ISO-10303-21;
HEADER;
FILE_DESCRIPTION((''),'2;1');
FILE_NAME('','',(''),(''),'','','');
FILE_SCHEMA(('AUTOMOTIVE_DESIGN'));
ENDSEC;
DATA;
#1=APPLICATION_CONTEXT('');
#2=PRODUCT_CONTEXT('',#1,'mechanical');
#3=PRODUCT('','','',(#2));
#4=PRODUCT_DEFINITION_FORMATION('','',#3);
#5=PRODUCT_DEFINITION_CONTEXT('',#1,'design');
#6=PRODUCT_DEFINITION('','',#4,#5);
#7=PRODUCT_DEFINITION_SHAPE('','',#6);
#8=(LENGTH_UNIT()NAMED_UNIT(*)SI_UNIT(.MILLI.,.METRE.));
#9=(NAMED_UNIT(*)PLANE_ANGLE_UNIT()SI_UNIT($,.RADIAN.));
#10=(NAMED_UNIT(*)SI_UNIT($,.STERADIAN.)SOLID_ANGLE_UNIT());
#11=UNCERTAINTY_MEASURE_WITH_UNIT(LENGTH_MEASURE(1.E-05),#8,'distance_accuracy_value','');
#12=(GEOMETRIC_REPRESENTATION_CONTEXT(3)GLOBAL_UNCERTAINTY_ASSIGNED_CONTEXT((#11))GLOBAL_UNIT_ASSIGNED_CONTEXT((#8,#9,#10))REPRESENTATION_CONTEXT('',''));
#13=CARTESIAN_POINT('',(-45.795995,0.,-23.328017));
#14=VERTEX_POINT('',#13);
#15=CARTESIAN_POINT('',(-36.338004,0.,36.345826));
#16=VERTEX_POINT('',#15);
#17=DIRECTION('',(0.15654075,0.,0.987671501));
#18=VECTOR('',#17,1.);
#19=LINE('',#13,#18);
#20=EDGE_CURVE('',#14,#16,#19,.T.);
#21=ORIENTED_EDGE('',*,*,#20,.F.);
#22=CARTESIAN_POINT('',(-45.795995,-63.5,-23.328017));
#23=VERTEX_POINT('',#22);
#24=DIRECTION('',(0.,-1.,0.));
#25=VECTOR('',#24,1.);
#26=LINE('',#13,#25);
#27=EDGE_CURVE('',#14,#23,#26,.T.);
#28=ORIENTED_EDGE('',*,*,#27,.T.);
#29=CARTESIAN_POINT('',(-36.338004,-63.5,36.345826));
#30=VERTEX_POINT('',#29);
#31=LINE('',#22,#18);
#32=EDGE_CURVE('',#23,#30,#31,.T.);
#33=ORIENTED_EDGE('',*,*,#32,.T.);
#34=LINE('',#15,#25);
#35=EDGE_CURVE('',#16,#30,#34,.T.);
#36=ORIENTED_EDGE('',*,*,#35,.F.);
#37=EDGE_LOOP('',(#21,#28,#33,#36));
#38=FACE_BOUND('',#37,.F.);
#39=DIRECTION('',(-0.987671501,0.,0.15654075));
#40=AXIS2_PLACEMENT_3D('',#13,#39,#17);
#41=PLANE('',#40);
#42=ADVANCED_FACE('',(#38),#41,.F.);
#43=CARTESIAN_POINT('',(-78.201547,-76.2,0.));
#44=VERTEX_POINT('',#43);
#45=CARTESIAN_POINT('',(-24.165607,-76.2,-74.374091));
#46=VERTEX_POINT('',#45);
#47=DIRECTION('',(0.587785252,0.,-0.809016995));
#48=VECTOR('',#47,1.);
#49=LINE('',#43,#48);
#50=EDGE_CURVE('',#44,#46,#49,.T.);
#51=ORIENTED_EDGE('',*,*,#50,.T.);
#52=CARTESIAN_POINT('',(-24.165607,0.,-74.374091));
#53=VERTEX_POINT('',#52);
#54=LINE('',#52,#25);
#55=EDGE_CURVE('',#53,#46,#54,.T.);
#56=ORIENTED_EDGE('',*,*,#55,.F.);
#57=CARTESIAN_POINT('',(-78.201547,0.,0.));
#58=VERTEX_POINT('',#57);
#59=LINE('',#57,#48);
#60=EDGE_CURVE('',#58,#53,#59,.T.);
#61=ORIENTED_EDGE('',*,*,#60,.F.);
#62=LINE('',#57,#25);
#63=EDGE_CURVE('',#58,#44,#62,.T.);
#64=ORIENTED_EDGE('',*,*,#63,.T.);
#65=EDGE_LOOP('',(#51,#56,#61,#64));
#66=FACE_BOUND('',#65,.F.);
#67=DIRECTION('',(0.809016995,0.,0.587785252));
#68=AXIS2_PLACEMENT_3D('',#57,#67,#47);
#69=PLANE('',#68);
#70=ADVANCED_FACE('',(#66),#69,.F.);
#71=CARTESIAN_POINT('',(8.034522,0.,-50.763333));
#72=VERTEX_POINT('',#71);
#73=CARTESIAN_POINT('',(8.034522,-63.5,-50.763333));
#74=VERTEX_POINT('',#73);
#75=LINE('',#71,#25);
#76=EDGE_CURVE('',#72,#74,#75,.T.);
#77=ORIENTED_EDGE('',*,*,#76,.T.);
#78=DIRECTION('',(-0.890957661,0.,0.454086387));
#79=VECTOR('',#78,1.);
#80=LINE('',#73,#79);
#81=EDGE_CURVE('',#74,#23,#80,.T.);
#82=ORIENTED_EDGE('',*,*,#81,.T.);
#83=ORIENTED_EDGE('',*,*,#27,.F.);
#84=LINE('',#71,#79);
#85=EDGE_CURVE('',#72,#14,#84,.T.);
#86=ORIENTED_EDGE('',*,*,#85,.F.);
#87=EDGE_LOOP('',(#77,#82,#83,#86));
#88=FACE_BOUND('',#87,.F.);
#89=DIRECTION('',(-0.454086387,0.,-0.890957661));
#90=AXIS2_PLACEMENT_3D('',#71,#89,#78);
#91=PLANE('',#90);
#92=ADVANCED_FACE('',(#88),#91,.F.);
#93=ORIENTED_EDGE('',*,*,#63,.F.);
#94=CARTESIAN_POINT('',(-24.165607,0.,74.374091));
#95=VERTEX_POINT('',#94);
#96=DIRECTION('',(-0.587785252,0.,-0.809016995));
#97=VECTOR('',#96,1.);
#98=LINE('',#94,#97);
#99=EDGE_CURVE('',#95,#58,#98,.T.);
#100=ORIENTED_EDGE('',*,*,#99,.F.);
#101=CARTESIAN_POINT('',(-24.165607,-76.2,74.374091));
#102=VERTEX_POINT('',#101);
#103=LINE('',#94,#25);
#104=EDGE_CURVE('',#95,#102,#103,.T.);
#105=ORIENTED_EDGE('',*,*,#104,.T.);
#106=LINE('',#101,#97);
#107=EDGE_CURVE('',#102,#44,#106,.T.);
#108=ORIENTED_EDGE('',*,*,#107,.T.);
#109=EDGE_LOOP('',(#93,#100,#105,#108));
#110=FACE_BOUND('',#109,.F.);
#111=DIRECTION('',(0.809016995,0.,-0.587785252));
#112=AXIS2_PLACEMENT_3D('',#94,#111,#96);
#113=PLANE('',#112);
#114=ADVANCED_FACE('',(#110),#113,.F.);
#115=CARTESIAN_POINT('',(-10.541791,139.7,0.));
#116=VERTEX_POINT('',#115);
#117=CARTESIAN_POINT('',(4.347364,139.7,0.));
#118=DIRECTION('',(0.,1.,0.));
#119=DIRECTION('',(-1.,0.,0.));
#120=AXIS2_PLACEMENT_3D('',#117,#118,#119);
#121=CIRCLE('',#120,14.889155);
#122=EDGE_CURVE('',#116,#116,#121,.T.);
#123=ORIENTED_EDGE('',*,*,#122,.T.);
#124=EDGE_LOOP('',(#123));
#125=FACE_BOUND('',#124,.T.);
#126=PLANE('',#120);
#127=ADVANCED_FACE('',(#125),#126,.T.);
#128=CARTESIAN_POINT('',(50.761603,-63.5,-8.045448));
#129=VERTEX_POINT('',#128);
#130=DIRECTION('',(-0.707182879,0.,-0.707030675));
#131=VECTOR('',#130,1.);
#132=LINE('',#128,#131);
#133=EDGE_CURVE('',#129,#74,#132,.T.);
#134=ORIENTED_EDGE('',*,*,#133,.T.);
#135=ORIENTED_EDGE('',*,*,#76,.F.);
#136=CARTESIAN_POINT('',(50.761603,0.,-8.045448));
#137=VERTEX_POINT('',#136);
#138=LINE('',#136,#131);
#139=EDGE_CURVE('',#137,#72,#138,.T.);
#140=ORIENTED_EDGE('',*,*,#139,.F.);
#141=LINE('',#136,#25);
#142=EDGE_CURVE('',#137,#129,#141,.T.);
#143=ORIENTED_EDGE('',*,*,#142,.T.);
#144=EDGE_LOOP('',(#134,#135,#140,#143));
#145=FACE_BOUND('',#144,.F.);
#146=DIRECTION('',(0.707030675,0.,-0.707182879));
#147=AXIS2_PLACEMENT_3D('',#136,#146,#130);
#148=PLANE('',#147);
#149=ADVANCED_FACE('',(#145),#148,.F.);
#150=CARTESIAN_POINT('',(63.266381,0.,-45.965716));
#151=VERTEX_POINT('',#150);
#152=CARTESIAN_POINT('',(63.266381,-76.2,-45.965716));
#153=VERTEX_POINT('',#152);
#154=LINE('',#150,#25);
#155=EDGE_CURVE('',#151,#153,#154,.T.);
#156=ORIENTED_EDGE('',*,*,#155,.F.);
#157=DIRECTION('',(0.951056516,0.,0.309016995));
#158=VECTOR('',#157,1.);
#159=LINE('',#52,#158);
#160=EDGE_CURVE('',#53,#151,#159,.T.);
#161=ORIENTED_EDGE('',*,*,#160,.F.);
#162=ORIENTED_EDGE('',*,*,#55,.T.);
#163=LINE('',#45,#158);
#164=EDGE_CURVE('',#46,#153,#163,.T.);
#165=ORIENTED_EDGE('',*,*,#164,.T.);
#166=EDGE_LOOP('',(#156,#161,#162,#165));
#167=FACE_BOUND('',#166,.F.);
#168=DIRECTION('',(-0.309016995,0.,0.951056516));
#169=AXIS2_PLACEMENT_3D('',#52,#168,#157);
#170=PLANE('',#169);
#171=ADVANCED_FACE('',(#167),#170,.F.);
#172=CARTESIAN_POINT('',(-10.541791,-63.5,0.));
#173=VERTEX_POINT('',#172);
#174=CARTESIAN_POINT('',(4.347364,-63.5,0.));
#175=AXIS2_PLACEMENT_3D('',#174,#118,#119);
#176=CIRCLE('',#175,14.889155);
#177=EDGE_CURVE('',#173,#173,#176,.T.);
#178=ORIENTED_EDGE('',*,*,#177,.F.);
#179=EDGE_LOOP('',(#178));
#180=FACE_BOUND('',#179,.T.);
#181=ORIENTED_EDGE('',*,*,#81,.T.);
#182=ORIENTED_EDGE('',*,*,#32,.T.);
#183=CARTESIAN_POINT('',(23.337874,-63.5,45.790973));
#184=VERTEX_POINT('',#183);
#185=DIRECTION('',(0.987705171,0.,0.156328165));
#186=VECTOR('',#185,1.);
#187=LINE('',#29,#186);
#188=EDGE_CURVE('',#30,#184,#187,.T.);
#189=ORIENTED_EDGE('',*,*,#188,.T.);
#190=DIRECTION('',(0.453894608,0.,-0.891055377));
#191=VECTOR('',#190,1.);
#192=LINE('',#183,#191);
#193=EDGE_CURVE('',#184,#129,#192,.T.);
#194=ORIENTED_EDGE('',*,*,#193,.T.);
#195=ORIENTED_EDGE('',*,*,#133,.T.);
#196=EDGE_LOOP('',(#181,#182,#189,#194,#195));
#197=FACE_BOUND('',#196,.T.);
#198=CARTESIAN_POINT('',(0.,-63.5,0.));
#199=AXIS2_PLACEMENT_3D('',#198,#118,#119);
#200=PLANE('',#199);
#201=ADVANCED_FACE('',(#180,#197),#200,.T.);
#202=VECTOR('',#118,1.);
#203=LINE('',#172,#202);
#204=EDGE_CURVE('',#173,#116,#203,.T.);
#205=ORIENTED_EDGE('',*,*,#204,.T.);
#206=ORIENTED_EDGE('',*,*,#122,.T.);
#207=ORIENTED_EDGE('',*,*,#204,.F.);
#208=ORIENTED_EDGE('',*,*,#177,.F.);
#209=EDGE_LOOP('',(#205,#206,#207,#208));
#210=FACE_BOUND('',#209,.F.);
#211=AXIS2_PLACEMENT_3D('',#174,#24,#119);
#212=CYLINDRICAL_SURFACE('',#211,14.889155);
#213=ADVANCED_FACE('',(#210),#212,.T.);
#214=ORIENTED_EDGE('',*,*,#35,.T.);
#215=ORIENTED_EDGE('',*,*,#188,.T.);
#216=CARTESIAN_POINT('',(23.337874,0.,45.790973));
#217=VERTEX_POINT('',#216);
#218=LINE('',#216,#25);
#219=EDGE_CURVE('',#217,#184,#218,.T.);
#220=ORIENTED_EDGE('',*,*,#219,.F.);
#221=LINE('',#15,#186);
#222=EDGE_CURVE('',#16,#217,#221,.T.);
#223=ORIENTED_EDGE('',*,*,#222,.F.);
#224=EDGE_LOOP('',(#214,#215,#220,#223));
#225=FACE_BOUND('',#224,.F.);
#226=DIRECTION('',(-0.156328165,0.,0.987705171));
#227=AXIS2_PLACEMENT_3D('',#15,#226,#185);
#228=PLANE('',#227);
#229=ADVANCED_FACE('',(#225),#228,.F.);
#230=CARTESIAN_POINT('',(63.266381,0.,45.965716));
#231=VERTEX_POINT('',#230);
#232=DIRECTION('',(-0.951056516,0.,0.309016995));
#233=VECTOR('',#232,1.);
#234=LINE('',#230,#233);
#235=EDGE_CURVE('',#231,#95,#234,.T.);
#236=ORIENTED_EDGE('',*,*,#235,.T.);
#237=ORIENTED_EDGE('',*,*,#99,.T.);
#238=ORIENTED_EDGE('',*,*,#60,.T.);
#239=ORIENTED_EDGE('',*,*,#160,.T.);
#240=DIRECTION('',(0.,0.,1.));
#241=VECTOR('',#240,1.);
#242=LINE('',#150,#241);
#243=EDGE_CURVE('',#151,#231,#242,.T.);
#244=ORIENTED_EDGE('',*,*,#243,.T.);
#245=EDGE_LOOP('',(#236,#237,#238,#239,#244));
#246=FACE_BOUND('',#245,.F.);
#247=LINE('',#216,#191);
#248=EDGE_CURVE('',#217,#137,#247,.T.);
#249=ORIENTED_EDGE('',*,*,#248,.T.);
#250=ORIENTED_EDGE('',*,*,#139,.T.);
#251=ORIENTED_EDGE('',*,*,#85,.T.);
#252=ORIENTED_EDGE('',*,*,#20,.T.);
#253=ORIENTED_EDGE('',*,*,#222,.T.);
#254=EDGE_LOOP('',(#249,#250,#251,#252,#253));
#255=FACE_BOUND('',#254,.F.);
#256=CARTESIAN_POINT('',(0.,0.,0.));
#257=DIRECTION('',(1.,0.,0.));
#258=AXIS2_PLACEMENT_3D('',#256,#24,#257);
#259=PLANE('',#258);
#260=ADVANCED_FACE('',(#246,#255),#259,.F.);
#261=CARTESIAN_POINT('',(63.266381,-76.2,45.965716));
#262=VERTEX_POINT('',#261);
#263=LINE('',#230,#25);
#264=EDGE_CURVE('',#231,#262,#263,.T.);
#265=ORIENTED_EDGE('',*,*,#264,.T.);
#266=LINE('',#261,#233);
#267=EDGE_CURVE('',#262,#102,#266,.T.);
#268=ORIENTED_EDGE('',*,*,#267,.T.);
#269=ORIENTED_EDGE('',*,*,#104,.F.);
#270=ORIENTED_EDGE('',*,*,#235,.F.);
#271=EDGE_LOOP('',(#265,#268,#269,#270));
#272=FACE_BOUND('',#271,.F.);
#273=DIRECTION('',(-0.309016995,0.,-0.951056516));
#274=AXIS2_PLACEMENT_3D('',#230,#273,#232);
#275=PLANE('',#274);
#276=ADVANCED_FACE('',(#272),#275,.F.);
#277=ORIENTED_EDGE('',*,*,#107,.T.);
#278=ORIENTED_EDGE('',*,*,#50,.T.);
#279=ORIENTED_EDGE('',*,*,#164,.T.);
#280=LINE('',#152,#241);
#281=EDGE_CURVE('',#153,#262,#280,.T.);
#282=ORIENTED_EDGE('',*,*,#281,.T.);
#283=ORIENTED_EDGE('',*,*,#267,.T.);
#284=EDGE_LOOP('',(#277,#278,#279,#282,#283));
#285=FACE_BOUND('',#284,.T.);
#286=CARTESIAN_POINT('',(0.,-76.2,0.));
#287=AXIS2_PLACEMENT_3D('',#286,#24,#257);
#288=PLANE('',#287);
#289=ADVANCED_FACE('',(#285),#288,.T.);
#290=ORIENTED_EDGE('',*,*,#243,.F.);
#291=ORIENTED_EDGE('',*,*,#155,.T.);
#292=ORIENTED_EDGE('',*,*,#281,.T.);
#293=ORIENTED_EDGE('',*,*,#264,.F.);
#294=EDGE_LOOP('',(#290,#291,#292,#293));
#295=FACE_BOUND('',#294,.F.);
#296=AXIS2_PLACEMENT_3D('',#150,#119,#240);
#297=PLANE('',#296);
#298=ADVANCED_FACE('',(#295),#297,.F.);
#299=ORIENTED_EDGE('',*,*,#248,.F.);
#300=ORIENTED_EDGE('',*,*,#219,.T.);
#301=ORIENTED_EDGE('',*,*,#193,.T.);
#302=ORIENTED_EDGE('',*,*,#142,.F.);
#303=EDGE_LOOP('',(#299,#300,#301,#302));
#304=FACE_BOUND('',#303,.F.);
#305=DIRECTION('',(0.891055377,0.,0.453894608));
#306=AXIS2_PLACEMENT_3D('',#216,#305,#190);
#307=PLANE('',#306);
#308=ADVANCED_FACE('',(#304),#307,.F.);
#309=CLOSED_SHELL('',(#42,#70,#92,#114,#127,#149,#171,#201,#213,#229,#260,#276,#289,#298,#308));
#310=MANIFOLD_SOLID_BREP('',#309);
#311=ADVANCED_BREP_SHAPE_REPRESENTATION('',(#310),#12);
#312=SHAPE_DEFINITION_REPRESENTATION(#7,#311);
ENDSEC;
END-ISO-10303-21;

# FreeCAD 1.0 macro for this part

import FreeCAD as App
import Part
import Sketcher
from FreeCAD import Vector
Q = App.Units.Quantity


def add_polygon(sketch, points):
    """Adds a closed chain of lines whose ends are joined by coincident constraints."""
    first, n = sketch.GeometryCount, len(points)
    for a, b in zip(points, points[1:] + points[:1]):
        sketch.addGeometry(Part.LineSegment(App.Vector(*a, 0), App.Vector(*b, 0)), False)
    for i in range(n):
        sketch.addConstraint(Sketcher.Constraint("Coincident", first + i, 2, first + (i + 1) % n, 1))

doc = App.newDocument("Part")
params = doc.addObject("Spreadsheet::Sheet", "Params")
for row, (alias, value) in enumerate([
    ("pad1_length", "3 in"),
    ("pocket1_length", "2.5 in"),
    ("pad2_length", "8 in"),
], start=1):
    params.set(f"A{row}", alias)
    params.set(f"B{row}", "=" + value)
    params.setAlias(f"B{row}", alias)

body = doc.addObject("PartDesign::Body", "Body")

# Sketch on XZ plane
sketch1 = body.newObject("Sketcher::SketchObject", "Sketch")
sketch1.AttachmentSupport = (doc.getObject("XZ_Plane"), [""])
sketch1.MapMode = "FlatFace"
add_polygon(sketch1, [(-24, 74), (-78, 0), (-24, -74), (63, -46), (63, 46)])  # lines 0-4
sketch1.addConstraint([
    Sketcher.Constraint("Vertical", 3),
    Sketcher.Constraint("Symmetric", 1, 2, 4, 2, -1),
    Sketcher.Constraint("PointOnObject", 0, 2, -1),
    Sketcher.Constraint("Equal", 1, 2),
    Sketcher.Constraint("Equal", 2, 4),
    Sketcher.Constraint("Angle", 0, Q("-126 deg")),
    Sketcher.Constraint("Angle", 2, Q("18 deg")),
    Sketcher.Constraint("DistanceY", 3, 1, 3, 2, 91.931432),
    Sketcher.Constraint("DistanceX", -1, 1, 2, 2, 63.266381),
])
pad1 = body.newObject("PartDesign::Pad", "Pad")
pad1.Profile = sketch1
pad1.setExpression("Length", "Params.pad1_length")

# Sketch on XZ plane
sketch2 = body.newObject("Sketcher::SketchObject", "Sketch001")
sketch2.AttachmentSupport = (doc.getObject("XZ_Plane"), [""])
sketch2.MapMode = "FlatFace"
add_polygon(sketch2, [(23, 46), (51, -8), (8, -51), (-46, -23), (-36, 36)])  # lines 0-4
sketch2.addConstraint([
    Sketcher.Constraint("Equal", 0, 1),
    Sketcher.Constraint("Equal", 1, 2),
    Sketcher.Constraint("Equal", 2, 3),
    Sketcher.Constraint("Equal", 3, 4),
    Sketcher.Constraint("DistanceX", 2, 2, 0, 2, 96.557598),
    Sketcher.Constraint("DistanceX", 1, 2, 0, 2, 42.727081),
    Sketcher.Constraint("DistanceY", 2, 2, 0, 2, 15.282569),
    Sketcher.Constraint("DistanceX", 2, 2, 3, 2, 9.457991),
    Sketcher.Constraint("DistanceX", -1, 1, 0, 2, 50.761603),
    Sketcher.Constraint("DistanceY", 0, 2, -1, 1, 8.045448),
])
pocket1 = body.newObject("PartDesign::Pocket", "Pocket")
pocket1.Profile = sketch2
pocket1.setExpression("Length", "Params.pocket1_length")
pocket1.Reversed = True

# Sketch on XZ plane
sketch3 = body.newObject("Sketcher::SketchObject", "Sketch002")
sketch3.AttachmentSupport = (doc.getObject("XZ_Plane"), [""])
sketch3.MapMode = "FlatFace"
sketch3.AttachmentOffset = App.Placement(Vector(0, 0, 2.5 * 25.4), App.Rotation())
sketch3.addGeometry(Part.Circle(Vector(4, 0, 0), Vector(0, 0, 1), 15), False)
sketch3.addConstraint([
    Sketcher.Constraint("PointOnObject", 0, 3, -1),
    Sketcher.Constraint("Diameter", 0, 29.77831),
    Sketcher.Constraint("DistanceX", -1, 1, 0, 3, 4.347364),
])
pad2 = body.newObject("PartDesign::Pad", "Pad001")
pad2.Profile = sketch3
pad2.setExpression("Length", "Params.pad2_length")
pad2.Reversed = True

doc.recompute()
